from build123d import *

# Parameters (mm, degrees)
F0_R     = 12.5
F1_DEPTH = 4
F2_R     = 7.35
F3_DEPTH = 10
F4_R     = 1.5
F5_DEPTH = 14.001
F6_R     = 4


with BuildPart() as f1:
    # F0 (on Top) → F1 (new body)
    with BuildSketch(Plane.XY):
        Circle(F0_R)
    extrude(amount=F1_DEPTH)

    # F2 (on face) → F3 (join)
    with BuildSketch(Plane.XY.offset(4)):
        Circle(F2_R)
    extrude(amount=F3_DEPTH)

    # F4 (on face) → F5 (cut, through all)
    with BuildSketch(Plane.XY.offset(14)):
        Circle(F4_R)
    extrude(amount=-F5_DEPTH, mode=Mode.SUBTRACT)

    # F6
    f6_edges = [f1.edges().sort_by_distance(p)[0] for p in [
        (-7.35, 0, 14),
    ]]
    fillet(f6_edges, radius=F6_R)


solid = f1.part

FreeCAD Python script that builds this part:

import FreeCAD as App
import Part
import Sketcher

V = App.Vector


def edges_at(feature, points):
    """Names of the edges that pass closest to the given points."""
    edges = feature.Shape.Edges
    near = lambda p: min(range(len(edges)), key=lambda i: edges[i].distToShape(Part.Vertex(*p))[0])
    return sorted({f"Edge{near(p) + 1}" for p in points})

doc = App.newDocument("Part")
body = doc.addObject("PartDesign::Body", "Body")

sketch1 = doc.addObject("Sketcher::SketchObject", "Sketch")
body.addObject(sketch1)
sketch1.AttachmentSupport = (doc.XY_Plane, [""])
sketch1.MapMode = "FlatFace"
sketch1.addGeometry(Part.Circle(V(0, 0, 0), V(0, 0, 1), 12), False)
sketch1.addConstraint(Sketcher.Constraint("Coincident", 0, 3, -1, 1))
sketch1.addConstraint(Sketcher.Constraint("Diameter", 0, 25.0))
pad1 = doc.addObject("PartDesign::Pad", "Pad")
body.addObject(pad1)
pad1.Profile = sketch1
pad1.Length = 4

sketch2 = doc.addObject("Sketcher::SketchObject", "Sketch001")
body.addObject(sketch2)
sketch2.AttachmentSupport = (doc.XY_Plane, [""])
sketch2.MapMode = "FlatFace"
sketch2.AttachmentOffset = App.Placement(V(0, 0, 4), App.Rotation())
sketch2.addGeometry(Part.Circle(V(0, 0, 0), V(0, 0, 1), 7), False)
sketch2.addConstraint(Sketcher.Constraint("Coincident", 0, 3, -1, 1))
sketch2.addConstraint(Sketcher.Constraint("Diameter", 0, 14.7))
pad2 = doc.addObject("PartDesign::Pad", "Pad001")
body.addObject(pad2)
pad2.Profile = sketch2
pad2.Length = 10

sketch3 = doc.addObject("Sketcher::SketchObject", "Sketch002")
body.addObject(sketch3)
sketch3.AttachmentSupport = (doc.XY_Plane, [""])
sketch3.MapMode = "FlatFace"
sketch3.AttachmentOffset = App.Placement(V(0, 0, 14), App.Rotation())
sketch3.addGeometry(Part.Circle(V(0, 0, 0), V(0, 0, 1), 1.5), False)
sketch3.addConstraint(Sketcher.Constraint("Coincident", 0, 3, -1, 1))
sketch3.addConstraint(Sketcher.Constraint("Diameter", 0, 3.0))
pocket1 = doc.addObject("PartDesign::Pocket", "Pocket")
body.addObject(pocket1)
pocket1.Profile = sketch3
pocket1.Type = "ThroughAll"
doc.recompute()

fillet = doc.addObject("PartDesign::Fillet", "Fillet")
body.addObject(fillet)
fillet.Base = (pocket1, edges_at(pocket1, [(-7.35, 0, 14)]))
fillet.Radius = 4

doc.recompute()
